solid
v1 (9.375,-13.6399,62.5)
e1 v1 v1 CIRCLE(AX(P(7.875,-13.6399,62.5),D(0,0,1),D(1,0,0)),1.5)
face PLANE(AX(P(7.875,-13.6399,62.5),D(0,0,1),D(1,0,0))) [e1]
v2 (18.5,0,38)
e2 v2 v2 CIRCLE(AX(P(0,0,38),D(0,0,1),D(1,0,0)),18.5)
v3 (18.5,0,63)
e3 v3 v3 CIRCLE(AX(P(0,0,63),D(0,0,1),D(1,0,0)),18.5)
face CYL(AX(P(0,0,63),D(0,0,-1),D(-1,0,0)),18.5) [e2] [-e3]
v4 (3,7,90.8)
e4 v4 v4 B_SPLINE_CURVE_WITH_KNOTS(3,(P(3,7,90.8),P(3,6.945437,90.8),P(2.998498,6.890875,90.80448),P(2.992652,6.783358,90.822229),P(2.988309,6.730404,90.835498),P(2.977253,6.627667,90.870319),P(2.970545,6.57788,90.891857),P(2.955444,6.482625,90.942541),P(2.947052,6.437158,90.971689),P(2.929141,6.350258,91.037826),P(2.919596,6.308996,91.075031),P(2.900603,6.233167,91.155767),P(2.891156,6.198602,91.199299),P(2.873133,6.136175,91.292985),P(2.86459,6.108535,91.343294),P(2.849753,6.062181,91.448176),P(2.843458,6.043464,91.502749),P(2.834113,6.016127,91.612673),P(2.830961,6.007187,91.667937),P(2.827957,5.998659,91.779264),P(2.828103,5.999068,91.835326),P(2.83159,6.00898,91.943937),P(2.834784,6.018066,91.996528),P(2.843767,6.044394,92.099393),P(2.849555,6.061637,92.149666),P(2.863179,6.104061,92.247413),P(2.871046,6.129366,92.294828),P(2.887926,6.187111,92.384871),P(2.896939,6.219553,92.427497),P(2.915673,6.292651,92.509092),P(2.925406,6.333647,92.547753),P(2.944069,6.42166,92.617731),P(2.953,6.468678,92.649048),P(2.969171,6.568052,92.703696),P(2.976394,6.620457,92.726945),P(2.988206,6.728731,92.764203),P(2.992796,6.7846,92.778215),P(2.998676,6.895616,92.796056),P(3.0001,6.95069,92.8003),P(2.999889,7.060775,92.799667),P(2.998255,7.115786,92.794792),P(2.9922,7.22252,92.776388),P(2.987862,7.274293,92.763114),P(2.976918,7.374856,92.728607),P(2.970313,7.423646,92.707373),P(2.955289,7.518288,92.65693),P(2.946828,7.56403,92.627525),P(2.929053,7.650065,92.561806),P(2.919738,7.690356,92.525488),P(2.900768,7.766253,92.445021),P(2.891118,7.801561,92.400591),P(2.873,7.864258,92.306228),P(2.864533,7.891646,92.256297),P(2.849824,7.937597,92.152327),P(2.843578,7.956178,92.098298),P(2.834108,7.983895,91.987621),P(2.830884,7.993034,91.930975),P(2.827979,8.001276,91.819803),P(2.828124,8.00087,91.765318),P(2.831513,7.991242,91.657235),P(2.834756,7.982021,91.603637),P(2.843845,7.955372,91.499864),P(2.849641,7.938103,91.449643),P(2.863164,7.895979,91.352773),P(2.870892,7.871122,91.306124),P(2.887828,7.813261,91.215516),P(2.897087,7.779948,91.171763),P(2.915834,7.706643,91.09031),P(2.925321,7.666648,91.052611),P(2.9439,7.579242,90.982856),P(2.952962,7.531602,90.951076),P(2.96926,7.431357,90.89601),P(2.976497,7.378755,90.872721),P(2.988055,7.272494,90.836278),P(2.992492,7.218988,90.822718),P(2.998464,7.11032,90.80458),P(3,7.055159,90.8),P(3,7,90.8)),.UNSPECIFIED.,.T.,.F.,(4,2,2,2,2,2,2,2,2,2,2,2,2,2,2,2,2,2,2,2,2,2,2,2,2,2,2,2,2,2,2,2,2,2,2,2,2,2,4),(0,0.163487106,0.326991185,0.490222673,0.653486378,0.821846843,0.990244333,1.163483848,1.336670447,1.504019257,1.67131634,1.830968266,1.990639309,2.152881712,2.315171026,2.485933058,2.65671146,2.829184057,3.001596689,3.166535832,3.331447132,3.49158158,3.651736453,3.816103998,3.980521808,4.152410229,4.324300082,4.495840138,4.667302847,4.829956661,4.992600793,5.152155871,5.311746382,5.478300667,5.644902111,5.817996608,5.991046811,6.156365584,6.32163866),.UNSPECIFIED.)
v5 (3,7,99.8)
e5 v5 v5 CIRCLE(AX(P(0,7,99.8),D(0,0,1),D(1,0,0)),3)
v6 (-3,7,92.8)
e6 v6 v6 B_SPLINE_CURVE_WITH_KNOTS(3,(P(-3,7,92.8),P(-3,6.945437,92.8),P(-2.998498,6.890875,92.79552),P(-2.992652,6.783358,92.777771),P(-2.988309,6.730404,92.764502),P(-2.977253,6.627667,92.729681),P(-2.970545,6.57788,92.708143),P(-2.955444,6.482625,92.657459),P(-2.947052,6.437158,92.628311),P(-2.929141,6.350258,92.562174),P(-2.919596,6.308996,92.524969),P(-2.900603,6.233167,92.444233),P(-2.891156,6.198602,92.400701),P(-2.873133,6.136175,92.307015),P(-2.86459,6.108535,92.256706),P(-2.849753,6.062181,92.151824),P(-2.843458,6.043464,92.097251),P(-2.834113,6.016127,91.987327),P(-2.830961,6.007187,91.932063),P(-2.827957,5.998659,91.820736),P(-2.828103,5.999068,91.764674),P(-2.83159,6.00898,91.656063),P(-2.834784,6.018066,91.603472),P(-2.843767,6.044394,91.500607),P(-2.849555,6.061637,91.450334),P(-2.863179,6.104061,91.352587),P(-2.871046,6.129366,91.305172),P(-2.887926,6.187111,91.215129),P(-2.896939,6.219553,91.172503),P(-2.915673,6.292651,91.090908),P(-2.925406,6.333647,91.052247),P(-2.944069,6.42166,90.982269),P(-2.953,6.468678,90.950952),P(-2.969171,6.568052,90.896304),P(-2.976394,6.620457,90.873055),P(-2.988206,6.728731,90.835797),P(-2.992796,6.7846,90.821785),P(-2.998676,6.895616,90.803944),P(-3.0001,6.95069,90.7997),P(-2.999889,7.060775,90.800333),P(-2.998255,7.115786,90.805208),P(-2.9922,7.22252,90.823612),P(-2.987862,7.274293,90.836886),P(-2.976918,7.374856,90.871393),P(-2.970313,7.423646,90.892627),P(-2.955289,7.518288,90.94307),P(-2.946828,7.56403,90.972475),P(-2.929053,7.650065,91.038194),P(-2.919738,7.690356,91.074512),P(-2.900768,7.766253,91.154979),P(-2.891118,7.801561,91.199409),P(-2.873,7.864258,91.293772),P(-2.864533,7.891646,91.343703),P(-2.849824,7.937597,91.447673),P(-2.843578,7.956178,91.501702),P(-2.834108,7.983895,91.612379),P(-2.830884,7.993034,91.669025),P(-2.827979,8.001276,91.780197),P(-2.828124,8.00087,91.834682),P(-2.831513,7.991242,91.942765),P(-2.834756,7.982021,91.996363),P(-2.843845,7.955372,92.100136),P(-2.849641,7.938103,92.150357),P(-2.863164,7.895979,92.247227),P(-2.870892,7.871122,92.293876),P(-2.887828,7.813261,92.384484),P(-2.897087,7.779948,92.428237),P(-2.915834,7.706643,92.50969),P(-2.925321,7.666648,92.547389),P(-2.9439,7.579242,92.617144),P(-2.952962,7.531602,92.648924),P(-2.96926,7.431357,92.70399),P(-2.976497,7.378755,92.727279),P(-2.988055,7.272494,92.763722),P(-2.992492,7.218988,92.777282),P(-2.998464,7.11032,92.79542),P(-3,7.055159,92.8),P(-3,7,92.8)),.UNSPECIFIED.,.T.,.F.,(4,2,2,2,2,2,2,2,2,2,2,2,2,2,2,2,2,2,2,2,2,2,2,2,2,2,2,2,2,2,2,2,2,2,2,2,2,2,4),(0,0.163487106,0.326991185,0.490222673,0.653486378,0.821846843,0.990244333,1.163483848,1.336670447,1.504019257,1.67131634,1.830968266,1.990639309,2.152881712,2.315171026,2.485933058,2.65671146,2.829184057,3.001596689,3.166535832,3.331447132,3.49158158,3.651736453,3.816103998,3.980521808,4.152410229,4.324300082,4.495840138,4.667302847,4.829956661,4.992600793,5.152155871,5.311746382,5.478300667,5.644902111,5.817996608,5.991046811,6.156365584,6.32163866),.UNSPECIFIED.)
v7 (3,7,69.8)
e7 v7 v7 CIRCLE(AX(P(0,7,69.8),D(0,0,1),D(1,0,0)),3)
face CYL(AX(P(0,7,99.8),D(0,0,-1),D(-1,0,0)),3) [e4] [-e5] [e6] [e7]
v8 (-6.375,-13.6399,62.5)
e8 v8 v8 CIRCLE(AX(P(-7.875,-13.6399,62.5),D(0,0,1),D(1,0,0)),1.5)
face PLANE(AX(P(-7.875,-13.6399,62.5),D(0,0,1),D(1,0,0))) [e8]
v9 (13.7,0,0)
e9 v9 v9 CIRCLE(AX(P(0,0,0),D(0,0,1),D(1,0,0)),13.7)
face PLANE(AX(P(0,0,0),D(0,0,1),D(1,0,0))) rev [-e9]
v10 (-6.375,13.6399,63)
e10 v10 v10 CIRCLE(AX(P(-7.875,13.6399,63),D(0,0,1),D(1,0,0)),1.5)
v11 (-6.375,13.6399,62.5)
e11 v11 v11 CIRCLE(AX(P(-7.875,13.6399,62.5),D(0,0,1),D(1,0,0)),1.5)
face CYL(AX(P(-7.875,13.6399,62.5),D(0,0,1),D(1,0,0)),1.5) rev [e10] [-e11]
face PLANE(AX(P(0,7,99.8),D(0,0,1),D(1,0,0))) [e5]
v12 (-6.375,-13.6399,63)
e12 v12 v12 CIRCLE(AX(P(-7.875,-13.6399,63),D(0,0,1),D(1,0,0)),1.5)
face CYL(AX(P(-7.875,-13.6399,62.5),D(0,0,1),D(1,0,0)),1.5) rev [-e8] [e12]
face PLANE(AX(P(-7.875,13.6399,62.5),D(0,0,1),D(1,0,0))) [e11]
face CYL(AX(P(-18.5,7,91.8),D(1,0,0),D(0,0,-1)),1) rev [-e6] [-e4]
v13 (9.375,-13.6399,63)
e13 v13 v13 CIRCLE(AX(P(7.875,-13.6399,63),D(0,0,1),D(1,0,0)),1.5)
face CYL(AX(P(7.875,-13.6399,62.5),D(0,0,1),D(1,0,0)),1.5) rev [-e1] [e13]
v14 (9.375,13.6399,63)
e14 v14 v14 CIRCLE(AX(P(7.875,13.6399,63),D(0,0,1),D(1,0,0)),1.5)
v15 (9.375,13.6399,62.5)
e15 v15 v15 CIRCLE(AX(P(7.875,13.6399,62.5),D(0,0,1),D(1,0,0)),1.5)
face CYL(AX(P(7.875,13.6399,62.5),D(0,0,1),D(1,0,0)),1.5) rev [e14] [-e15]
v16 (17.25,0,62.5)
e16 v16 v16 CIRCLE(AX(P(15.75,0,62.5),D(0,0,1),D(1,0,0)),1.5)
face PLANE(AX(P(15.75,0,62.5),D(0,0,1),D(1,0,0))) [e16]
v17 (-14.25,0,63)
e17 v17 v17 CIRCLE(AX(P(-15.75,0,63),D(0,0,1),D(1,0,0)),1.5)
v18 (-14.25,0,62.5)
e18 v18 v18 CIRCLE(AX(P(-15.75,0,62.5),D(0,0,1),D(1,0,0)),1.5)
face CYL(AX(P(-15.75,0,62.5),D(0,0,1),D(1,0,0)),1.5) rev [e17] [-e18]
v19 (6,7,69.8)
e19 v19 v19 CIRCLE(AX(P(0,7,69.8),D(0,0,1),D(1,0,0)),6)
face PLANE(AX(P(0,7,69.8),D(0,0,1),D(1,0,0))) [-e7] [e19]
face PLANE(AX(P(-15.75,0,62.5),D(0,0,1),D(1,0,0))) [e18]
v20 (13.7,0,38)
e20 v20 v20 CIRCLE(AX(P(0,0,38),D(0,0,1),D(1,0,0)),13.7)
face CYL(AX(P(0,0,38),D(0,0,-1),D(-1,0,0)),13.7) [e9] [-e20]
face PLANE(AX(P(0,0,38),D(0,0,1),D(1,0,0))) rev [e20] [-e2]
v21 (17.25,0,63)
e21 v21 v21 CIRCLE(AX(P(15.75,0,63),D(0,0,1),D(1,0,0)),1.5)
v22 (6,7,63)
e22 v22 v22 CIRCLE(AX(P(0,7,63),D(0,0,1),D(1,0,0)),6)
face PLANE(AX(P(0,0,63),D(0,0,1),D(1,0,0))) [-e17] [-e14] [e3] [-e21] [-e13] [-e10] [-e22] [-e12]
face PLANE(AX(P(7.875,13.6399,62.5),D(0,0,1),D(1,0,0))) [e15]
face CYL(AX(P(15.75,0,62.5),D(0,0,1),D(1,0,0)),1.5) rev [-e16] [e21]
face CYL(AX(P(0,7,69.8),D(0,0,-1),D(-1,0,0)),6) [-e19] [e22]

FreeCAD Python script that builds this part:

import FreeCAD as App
import Part
import Sketcher

V = App.Vector
Q = App.Units.Quantity

doc = App.newDocument("Part")
body = doc.addObject("PartDesign::Body", "Body")

sketch1 = body.newObject("Sketcher::SketchObject", "Sketch")
sketch1.AttachmentSupport = (doc.getObject("XY_Plane"), [""])
sketch1.MapMode = "FlatFace"
sketch1.addGeometry(Part.Circle(V(0, 0, 0), V(0, 0, 1), 13.7), False)
sketch1.addConstraint([
    Sketcher.Constraint("Coincident", 0, 3, -1, 1),
    Sketcher.Constraint("Diameter", 0, Q("27.4 mm")),
])
pad1 = body.newObject("PartDesign::Pad", "Pad")
pad1.Profile = sketch1
pad1.Length = 38

sketch2 = body.newObject("Sketcher::SketchObject", "Sketch001")
sketch2.AttachmentSupport = (doc.getObject("XY_Plane"), [""])
sketch2.MapMode = "FlatFace"
sketch2.AttachmentOffset = App.Placement(V(0, 0, 38), App.Rotation())
sketch2.addGeometry(Part.Circle(V(0, 0, 0), V(0, 0, 1), 18.5), False)
sketch2.addConstraint([
    Sketcher.Constraint("Coincident", 0, 3, -1, 1),
    Sketcher.Constraint("Diameter", 0, Q("37 mm")),
])
pad2 = body.newObject("PartDesign::Pad", "Pad001")
pad2.Profile = sketch2
pad2.Length = 25

sketch3 = body.newObject("Sketcher::SketchObject", "Sketch002")
sketch3.AttachmentSupport = (doc.getObject("XY_Plane"), [""])
sketch3.MapMode = "FlatFace"
sketch3.AttachmentOffset = App.Placement(V(0, 0, 63), App.Rotation())
sketch3.addGeometry(Part.Circle(V(0, 7, 0), V(0, 0, 1), 6), False)
sketch3.addConstraint([
    Sketcher.Constraint("PointOnObject", 0, 3, -2),
    Sketcher.Constraint("Diameter", 0, Q("12 mm")),
    Sketcher.Constraint("DistanceY", -1, 1, 0, 3, Q("7 mm")),
])
pad3 = body.newObject("PartDesign::Pad", "Pad002")
pad3.Profile = sketch3
pad3.Length = 6.8

sketch4 = body.newObject("Sketcher::SketchObject", "Sketch003")
sketch4.AttachmentSupport = (doc.getObject("XY_Plane"), [""])
sketch4.MapMode = "FlatFace"
sketch4.AttachmentOffset = App.Placement(V(0, 0, 69.8), App.Rotation())
sketch4.addGeometry(Part.Circle(V(0, 7, 0), V(0, 0, 1), 3), False)
sketch4.addConstraint([
    Sketcher.Constraint("PointOnObject", 0, 3, -2),
    Sketcher.Constraint("Diameter", 0, Q("6 mm")),
    Sketcher.Constraint("DistanceY", -1, 1, 0, 3, Q("7 mm")),
])
pad4 = body.newObject("PartDesign::Pad", "Pad003")
pad4.Profile = sketch4
pad4.Length = 30

sketch5 = body.newObject("Sketcher::SketchObject", "Sketch004")
sketch5.AttachmentSupport = (doc.getObject("XY_Plane"), [""])
sketch5.MapMode = "FlatFace"
sketch5.AttachmentOffset = App.Placement(V(0, 0, 63), App.Rotation())
sketch5.addGeometry([
    Part.Circle(V(-15.75, 0, 0), V(0, 0, 1), 1.5),
    Part.Circle(V(-7.875, 13.6399, 0), V(0, 0, 1), 1.5),
    Part.Circle(V(7.875, 13.6399, 0), V(0, 0, 1), 1.5),
    Part.Circle(V(15.75, 0, 0), V(0, 0, 1), 1.5),
    Part.Circle(V(7.875, -13.6399, 0), V(0, 0, 1), 1.5),
    Part.Circle(V(-7.875, -13.6399, 0), V(0, 0, 1), 1.5),
], False)
sketch5.addConstraint([
    Sketcher.Constraint("Equal", 0, 1),
    Sketcher.Constraint("Equal", 1, 2),
    Sketcher.Constraint("Equal", 2, 3),
    Sketcher.Constraint("Equal", 3, 4),
    Sketcher.Constraint("Equal", 4, 5),
    Sketcher.Constraint("Symmetric", 0, 3, 3, 3, -1, 1),
    Sketcher.Constraint("Symmetric", 1, 3, 4, 3, -1, 1),
    Sketcher.Constraint("Symmetric", 2, 3, 5, 3, -1, 1),
    Sketcher.Constraint("Symmetric", 1, 3, 2, 3, -2),
    Sketcher.Constraint("PointOnObject", 0, 3, -1),
    Sketcher.Constraint("Diameter", 0, Q("3 mm")),
    Sketcher.Constraint("DistanceX", 0, 3, 3, 3, Q("31.5 mm")),
    Sketcher.Constraint("DistanceX", 1, 3, 2, 3, Q("15.75 mm")),
    Sketcher.Constraint("DistanceY", -1, 1, 1, 3, Q("13.6399 mm")),
])
pocket1 = body.newObject("PartDesign::Pocket", "Pocket")
pocket1.Profile = sketch5
pocket1.Length = 0.5

sketch6 = body.newObject("Sketcher::SketchObject", "Sketch005")
sketch6.AttachmentSupport = (doc.getObject("YZ_Plane"), [""])
sketch6.MapMode = "FlatFace"
sketch6.addGeometry(Part.Circle(V(7, 91.8, 0), V(0, 0, 1), 1), False)
sketch6.addConstraint([
    Sketcher.Constraint("Diameter", 0, Q("2 mm")),
    Sketcher.Constraint("DistanceX", -1, 1, 0, 3, Q("7 mm")),
    Sketcher.Constraint("DistanceY", -1, 1, 0, 3, Q("91.8 mm")),
])
pocket2 = body.newObject("PartDesign::Pocket", "Pocket001")
pocket2.Profile = sketch6
pocket2.Type = "ThroughAll"
pocket2.Midplane = True

doc.recompute()
